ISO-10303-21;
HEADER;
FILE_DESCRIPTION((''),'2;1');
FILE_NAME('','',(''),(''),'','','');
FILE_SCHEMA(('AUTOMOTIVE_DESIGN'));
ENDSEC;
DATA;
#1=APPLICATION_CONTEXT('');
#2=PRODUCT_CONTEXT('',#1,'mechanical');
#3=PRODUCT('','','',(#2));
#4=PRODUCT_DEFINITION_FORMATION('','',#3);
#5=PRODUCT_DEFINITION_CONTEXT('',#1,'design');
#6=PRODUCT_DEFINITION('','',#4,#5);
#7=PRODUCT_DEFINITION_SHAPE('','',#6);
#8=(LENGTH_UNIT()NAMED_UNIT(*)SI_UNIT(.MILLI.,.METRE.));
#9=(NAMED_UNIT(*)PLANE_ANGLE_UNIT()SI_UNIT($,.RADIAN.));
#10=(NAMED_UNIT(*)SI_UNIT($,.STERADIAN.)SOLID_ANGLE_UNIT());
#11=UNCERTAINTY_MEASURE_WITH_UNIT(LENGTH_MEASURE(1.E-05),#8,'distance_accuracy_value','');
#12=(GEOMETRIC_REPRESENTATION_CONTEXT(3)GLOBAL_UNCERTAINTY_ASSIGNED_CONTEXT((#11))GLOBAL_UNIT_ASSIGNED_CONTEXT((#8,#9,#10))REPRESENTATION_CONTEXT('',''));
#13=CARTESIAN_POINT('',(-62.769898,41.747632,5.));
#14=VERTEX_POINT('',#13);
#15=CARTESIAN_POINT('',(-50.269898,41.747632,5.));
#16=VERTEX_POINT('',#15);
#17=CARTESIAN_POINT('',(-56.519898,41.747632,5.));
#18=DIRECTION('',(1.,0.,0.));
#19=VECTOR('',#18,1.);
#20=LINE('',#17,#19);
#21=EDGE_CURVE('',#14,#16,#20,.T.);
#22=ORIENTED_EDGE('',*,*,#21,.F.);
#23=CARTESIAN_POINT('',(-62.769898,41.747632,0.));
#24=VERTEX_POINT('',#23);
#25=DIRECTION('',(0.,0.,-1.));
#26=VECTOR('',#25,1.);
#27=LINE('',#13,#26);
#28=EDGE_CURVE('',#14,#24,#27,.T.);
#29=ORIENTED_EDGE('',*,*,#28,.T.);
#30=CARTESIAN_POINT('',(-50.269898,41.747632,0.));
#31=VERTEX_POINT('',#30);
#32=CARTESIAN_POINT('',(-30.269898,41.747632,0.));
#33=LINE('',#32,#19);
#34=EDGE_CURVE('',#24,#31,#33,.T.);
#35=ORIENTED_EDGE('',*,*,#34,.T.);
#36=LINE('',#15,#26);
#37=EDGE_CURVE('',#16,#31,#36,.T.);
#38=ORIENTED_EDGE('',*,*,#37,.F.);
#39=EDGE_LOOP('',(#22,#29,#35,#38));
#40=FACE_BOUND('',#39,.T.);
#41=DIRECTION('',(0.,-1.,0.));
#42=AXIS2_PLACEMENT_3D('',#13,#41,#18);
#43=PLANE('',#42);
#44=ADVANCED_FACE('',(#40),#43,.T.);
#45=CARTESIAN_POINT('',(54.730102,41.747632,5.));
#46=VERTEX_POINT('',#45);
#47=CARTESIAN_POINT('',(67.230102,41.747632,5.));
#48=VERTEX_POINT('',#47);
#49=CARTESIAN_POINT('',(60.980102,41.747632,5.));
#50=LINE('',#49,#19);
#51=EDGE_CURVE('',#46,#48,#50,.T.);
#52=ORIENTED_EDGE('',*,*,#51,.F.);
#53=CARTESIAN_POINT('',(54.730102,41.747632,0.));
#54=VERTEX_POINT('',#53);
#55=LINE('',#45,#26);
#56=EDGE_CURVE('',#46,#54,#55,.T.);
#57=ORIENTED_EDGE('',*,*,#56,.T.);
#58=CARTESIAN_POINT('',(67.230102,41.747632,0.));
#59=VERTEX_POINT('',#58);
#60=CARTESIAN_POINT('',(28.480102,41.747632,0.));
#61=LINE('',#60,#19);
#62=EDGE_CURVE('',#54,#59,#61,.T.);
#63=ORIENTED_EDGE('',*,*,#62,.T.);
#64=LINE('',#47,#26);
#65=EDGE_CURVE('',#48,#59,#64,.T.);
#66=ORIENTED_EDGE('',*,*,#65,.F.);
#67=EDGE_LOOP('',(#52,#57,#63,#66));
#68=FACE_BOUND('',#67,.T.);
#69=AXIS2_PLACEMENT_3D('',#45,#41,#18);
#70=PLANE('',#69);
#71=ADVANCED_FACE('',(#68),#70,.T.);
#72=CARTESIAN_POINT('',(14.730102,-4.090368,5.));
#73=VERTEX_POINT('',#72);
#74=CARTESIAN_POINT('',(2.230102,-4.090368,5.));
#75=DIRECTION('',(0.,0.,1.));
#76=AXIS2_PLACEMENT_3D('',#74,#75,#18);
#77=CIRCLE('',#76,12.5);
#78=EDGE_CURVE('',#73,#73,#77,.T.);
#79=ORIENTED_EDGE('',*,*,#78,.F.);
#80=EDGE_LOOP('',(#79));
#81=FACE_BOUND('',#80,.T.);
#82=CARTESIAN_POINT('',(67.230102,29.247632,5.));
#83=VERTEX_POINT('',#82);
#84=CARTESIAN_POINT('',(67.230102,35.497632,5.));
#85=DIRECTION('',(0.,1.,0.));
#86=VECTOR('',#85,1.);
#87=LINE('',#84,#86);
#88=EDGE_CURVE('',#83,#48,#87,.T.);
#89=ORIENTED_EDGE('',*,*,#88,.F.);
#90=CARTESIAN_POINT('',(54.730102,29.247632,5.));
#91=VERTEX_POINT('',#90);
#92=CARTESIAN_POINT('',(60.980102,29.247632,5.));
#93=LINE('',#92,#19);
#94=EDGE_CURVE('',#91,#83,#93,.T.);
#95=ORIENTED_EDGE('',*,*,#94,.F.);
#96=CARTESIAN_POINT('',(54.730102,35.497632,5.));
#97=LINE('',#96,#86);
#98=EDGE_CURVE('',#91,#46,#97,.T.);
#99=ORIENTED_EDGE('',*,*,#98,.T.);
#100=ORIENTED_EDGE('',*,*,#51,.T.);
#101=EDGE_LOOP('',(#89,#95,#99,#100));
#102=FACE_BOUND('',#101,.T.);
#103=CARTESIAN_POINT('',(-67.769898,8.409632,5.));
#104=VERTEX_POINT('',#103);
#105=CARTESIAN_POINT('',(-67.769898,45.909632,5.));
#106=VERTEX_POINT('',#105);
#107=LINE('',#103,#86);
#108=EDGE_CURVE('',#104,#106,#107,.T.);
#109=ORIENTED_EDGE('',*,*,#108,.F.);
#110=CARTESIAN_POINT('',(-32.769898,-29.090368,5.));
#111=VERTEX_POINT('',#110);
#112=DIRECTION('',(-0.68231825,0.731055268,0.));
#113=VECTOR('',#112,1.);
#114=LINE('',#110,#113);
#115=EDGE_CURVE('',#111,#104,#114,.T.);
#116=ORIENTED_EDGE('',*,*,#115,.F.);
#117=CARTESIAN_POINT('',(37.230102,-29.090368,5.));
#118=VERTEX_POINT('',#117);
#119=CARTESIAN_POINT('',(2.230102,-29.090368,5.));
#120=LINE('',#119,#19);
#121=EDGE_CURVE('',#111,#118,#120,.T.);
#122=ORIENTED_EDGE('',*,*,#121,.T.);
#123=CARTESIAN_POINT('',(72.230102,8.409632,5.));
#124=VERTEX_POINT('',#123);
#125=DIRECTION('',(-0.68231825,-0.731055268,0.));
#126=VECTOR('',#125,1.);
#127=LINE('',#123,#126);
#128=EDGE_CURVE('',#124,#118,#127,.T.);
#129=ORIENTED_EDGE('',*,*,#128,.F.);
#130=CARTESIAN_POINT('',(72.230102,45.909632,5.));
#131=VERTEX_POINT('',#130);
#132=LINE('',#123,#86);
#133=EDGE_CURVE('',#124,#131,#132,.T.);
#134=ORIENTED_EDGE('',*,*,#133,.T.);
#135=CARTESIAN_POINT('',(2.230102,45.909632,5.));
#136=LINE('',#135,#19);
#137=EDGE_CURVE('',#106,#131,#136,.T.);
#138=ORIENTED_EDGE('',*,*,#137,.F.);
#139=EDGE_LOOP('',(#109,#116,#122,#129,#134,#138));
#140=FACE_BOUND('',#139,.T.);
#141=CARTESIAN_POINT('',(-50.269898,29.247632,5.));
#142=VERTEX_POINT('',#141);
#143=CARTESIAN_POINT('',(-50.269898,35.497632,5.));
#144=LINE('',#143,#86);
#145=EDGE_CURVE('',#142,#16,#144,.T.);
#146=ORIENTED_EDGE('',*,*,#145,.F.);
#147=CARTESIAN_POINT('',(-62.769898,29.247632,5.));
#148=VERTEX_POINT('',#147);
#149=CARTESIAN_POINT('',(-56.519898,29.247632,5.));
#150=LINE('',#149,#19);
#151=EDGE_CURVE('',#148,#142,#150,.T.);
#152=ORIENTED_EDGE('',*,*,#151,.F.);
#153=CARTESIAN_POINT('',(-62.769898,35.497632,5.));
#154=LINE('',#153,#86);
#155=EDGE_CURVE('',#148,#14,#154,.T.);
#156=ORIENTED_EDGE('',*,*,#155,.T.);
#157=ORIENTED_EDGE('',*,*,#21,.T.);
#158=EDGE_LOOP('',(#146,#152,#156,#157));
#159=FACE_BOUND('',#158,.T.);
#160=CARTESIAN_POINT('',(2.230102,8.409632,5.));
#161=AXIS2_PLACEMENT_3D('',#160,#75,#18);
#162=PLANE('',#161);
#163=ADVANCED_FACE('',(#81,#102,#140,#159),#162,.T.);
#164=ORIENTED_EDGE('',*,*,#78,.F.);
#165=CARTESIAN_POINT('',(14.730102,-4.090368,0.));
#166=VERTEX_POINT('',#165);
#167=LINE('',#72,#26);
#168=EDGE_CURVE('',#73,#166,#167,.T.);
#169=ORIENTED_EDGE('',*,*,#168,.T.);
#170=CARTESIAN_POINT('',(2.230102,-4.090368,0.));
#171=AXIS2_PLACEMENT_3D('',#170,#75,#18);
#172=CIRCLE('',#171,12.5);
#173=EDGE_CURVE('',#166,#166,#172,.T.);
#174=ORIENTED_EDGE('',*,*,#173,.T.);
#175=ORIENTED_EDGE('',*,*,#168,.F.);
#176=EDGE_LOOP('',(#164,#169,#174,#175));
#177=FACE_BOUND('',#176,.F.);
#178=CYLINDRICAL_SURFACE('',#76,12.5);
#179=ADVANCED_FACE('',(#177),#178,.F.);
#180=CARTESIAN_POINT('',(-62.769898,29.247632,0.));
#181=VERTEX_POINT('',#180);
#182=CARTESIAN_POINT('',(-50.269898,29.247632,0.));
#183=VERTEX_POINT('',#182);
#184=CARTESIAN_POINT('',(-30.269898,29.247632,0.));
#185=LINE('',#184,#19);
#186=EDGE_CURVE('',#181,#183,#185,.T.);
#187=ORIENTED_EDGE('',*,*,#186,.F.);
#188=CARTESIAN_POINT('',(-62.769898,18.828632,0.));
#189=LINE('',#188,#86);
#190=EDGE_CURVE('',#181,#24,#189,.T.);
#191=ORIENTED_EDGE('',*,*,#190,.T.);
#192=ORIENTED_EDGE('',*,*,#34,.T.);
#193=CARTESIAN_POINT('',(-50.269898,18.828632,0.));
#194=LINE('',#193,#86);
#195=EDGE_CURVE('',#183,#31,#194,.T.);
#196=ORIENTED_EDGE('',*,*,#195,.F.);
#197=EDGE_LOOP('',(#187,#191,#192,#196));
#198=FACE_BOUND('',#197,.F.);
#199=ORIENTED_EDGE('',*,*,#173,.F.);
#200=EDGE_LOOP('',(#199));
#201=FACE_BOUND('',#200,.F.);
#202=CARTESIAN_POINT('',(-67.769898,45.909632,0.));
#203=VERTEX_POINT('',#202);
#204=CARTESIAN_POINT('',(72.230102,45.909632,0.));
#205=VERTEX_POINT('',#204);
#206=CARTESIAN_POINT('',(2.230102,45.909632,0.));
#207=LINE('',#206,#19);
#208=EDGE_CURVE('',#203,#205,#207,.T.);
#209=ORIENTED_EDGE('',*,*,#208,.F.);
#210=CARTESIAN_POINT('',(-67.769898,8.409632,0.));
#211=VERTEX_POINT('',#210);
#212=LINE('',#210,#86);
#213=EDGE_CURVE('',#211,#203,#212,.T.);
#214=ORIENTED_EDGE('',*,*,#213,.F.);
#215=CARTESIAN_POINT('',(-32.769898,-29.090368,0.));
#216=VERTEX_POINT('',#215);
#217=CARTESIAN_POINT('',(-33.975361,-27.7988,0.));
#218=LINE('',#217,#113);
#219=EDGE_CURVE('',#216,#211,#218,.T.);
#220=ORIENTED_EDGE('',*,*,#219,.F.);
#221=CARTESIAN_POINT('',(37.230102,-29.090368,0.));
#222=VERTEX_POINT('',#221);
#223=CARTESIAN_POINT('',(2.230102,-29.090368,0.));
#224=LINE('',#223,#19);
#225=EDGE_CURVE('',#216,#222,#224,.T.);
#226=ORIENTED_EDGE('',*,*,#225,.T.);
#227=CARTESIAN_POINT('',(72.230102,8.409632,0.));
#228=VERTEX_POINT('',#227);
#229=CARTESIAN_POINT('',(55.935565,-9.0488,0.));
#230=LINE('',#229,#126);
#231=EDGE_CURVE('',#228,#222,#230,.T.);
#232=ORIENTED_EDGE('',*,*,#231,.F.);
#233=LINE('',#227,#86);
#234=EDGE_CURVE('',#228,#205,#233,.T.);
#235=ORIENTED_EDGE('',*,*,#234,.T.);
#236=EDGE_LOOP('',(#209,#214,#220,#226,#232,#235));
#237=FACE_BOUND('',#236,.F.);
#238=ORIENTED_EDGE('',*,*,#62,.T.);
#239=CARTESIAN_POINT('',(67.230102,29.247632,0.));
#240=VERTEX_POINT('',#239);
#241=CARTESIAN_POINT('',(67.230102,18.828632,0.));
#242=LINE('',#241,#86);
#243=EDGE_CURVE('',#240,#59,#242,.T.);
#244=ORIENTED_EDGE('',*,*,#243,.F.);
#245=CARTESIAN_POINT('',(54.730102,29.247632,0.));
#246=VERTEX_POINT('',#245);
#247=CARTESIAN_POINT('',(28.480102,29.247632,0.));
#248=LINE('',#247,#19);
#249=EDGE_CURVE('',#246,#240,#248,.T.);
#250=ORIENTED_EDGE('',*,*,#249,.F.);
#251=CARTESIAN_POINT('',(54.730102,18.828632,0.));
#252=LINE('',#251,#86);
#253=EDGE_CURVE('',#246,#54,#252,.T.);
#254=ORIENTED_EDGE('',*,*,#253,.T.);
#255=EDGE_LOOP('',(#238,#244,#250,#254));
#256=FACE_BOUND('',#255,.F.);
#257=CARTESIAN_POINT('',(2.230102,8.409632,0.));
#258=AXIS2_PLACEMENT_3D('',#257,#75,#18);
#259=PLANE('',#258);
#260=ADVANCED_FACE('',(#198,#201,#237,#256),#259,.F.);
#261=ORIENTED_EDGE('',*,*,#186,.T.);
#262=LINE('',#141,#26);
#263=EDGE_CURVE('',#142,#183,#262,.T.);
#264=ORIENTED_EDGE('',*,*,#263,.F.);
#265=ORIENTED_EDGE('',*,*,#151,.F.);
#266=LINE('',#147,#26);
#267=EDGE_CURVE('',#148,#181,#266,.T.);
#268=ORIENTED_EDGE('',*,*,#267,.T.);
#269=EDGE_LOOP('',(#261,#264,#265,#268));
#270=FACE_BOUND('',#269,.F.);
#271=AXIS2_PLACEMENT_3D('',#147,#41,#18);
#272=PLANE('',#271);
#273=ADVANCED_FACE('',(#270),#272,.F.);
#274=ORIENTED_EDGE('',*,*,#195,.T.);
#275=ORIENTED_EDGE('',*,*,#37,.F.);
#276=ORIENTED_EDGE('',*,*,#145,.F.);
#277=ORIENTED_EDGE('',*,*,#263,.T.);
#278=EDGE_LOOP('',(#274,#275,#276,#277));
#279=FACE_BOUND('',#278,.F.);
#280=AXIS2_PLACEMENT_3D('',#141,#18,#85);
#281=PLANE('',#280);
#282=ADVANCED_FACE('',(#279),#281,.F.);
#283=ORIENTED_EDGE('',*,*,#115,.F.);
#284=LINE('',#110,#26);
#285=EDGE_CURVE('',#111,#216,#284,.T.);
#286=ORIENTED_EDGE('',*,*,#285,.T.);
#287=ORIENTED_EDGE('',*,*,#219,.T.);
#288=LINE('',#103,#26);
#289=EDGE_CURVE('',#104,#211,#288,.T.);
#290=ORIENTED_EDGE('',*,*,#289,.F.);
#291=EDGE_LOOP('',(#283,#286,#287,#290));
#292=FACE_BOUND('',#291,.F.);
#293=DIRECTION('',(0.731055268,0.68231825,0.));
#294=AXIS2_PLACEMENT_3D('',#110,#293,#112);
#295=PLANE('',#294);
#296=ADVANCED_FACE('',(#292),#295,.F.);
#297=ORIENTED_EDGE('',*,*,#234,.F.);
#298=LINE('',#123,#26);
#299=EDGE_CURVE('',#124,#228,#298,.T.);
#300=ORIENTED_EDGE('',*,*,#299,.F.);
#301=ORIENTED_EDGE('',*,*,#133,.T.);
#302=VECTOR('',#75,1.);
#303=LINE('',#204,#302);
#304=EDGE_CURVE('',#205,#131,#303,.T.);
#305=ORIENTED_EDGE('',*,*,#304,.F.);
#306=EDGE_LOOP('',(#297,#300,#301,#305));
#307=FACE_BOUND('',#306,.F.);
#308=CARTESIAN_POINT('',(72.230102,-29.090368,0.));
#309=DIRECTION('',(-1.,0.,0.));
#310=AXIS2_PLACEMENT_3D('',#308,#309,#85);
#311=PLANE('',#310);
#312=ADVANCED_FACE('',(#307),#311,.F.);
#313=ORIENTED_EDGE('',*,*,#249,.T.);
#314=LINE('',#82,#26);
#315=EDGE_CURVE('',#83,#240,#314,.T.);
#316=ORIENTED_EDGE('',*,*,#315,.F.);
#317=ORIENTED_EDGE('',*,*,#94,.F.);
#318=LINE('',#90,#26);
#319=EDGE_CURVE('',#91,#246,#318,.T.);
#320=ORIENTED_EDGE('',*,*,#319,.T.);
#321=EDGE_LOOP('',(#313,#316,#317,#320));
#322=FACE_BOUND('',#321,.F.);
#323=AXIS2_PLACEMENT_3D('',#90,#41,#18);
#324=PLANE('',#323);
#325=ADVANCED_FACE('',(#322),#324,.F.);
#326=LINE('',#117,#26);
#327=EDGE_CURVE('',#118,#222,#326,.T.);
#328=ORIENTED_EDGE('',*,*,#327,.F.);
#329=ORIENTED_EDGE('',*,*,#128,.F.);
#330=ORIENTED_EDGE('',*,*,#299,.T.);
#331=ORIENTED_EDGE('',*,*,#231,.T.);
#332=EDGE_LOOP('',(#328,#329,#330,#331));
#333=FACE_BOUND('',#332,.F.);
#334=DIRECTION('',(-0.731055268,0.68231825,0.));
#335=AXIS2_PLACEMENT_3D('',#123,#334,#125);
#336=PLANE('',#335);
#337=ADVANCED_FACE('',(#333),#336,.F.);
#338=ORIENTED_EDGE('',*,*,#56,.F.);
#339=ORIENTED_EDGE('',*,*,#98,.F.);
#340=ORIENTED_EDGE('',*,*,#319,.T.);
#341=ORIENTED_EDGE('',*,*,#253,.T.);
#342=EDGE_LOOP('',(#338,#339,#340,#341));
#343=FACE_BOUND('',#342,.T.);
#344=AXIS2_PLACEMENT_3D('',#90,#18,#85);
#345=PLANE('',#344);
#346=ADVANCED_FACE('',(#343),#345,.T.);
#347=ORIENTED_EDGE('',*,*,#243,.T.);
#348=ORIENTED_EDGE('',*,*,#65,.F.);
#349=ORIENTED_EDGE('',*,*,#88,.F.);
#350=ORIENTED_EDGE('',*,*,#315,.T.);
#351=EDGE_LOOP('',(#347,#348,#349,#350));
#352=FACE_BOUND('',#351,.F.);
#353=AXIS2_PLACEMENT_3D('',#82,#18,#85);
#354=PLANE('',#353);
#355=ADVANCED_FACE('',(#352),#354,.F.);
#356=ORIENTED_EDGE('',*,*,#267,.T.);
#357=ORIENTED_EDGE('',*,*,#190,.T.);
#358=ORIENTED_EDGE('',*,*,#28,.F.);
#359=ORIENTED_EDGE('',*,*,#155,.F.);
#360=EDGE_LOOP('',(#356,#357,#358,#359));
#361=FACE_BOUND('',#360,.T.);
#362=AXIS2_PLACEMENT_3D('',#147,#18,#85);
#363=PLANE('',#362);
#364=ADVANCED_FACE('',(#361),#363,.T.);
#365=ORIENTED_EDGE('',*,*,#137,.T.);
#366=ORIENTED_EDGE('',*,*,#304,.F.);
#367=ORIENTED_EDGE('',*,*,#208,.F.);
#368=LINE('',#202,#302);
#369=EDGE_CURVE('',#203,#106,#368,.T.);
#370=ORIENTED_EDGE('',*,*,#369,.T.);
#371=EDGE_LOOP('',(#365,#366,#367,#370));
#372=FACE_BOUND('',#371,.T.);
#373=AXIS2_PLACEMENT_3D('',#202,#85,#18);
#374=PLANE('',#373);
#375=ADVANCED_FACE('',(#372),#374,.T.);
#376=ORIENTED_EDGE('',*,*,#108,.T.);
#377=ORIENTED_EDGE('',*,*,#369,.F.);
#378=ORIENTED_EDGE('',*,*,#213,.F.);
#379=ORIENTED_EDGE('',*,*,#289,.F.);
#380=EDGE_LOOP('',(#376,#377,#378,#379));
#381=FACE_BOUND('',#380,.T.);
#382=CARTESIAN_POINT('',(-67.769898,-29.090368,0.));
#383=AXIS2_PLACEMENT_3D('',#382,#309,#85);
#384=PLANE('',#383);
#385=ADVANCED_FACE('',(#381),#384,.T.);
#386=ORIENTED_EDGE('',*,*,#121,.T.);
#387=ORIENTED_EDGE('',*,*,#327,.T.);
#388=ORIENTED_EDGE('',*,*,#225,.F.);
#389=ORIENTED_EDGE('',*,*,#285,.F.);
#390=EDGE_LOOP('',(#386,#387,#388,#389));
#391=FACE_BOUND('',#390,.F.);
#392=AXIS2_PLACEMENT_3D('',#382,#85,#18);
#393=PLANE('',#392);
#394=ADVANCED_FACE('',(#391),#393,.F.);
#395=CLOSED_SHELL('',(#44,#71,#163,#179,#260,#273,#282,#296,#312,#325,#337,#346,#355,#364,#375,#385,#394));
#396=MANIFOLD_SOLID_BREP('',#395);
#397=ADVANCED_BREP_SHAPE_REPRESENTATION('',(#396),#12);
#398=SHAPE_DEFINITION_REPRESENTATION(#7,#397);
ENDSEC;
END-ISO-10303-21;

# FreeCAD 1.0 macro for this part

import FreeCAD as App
import Part
import Sketcher
from FreeCAD import Vector

doc = App.newDocument("Part")
body = doc.addObject("PartDesign::Body", "Body")

# Sketch on XY plane
sketch1 = body.newObject("Sketcher::SketchObject", "Sketch")
sketch1.AttachmentSupport = (doc.getObject("XY_Plane"), [""])
sketch1.MapMode = "FlatFace"
sketch1.addGeometry(Part.LineSegment(Vector(-67.769898, 45.909632, 0), Vector(-67.769898, -29.090368, 0)), False)
sketch1.addGeometry(Part.LineSegment(Vector(-67.769898, -29.090368, 0), Vector(72.230102, -29.090368, 0)), False)
sketch1.addGeometry(Part.LineSegment(Vector(72.230102, -29.090368, 0), Vector(72.230102, 45.909632, 0)), False)
sketch1.addGeometry(Part.LineSegment(Vector(72.230102, 45.909632, 0), Vector(-67.769898, 45.909632, 0)), False)
sketch1.addConstraint(Sketcher.Constraint("Coincident", 0, 2, 1, 1))
sketch1.addConstraint(Sketcher.Constraint("Coincident", 1, 2, 2, 1))
sketch1.addConstraint(Sketcher.Constraint("Coincident", 2, 2, 3, 1))
sketch1.addConstraint(Sketcher.Constraint("Coincident", 3, 2, 0, 1))
sketch1.addConstraint(Sketcher.Constraint("Vertical", 0))
sketch1.addConstraint(Sketcher.Constraint("Horizontal", 1))
sketch1.addConstraint(Sketcher.Constraint("Vertical", 2))
sketch1.addConstraint(Sketcher.Constraint("Horizontal", 3))
sketch1.addConstraint(Sketcher.Constraint("DistanceX", 1, 1, 1, 2, 140.0))
sketch1.addConstraint(Sketcher.Constraint("DistanceY", 0, 2, 0, 1, 75.0))
sketch1.addConstraint(Sketcher.Constraint("DistanceY", 0, 2, -1, 1, 29.090368))
sketch1.addConstraint(Sketcher.Constraint("DistanceX", 0, 2, -1, 1, 67.769898))
pad1 = body.newObject("PartDesign::Pad", "Pad")
pad1.Profile = sketch1
pad1.Length = 5

# Sketch on XY plane
sketch2 = body.newObject("Sketcher::SketchObject", "Sketch001")
sketch2.AttachmentSupport = (doc.getObject("XY_Plane"), [""])
sketch2.MapMode = "FlatFace"
sketch2.AttachmentOffset = App.Placement(Vector(0, 0, 5), App.Rotation())
sketch2.addGeometry(Part.LineSegment(Vector(-62.769898, 41.747632, 0), Vector(-62.769898, 29.247632, 0)), False)
sketch2.addGeometry(Part.LineSegment(Vector(-62.769898, 29.247632, 0), Vector(-50.269898, 29.247632, 0)), False)
sketch2.addGeometry(Part.LineSegment(Vector(-50.269898, 29.247632, 0), Vector(-50.269898, 41.747632, 0)), False)
sketch2.addGeometry(Part.LineSegment(Vector(-50.269898, 41.747632, 0), Vector(-62.769898, 41.747632, 0)), False)
sketch2.addGeometry(Part.LineSegment(Vector(54.730102, 41.747632, 0), Vector(54.730102, 29.247632, 0)), False)
sketch2.addGeometry(Part.LineSegment(Vector(54.730102, 29.247632, 0), Vector(67.230102, 29.247632, 0)), False)
sketch2.addGeometry(Part.LineSegment(Vector(67.230102, 29.247632, 0), Vector(67.230102, 41.747632, 0)), False)
sketch2.addGeometry(Part.LineSegment(Vector(67.230102, 41.747632, 0), Vector(54.730102, 41.747632, 0)), False)
sketch2.addConstraint(Sketcher.Constraint("Coincident", 0, 2, 1, 1))
sketch2.addConstraint(Sketcher.Constraint("Coincident", 1, 2, 2, 1))
sketch2.addConstraint(Sketcher.Constraint("Coincident", 2, 2, 3, 1))
sketch2.addConstraint(Sketcher.Constraint("Coincident", 3, 2, 0, 1))
sketch2.addConstraint(Sketcher.Constraint("Coincident", 4, 2, 5, 1))
sketch2.addConstraint(Sketcher.Constraint("Coincident", 5, 2, 6, 1))
sketch2.addConstraint(Sketcher.Constraint("Coincident", 6, 2, 7, 1))
sketch2.addConstraint(Sketcher.Constraint("Coincident", 7, 2, 4, 1))
sketch2.addConstraint(Sketcher.Constraint("Vertical", 0))
sketch2.addConstraint(Sketcher.Constraint("Horizontal", 1))
sketch2.addConstraint(Sketcher.Constraint("Vertical", 2))
sketch2.addConstraint(Sketcher.Constraint("Horizontal", 3))
sketch2.addConstraint(Sketcher.Constraint("Vertical", 4))
sketch2.addConstraint(Sketcher.Constraint("Horizontal", 5))
sketch2.addConstraint(Sketcher.Constraint("Vertical", 6))
sketch2.addConstraint(Sketcher.Constraint("Horizontal", 7))
sketch2.addConstraint(Sketcher.Constraint("Horizontal", 1, 2, 4, 2))
sketch2.addConstraint(Sketcher.Constraint("Horizontal", 3, 2, 6, 2))
sketch2.addConstraint(Sketcher.Constraint("Equal", 3, 5))
sketch2.addConstraint(Sketcher.Constraint("Equal", 7, 0))
sketch2.addConstraint(Sketcher.Constraint("DistanceX", 1, 1, 1, 2, 12.5))
sketch2.addConstraint(Sketcher.Constraint("DistanceX", 1, 2, 4, 2, 105.0))
sketch2.addConstraint(Sketcher.Constraint("DistanceY", -1, 1, 0, 2, 29.247632))
sketch2.addConstraint(Sketcher.Constraint("DistanceX", 0, 2, -1, 1, 62.769898))
pocket1 = body.newObject("PartDesign::Pocket", "Pocket")
pocket1.Profile = sketch2
pocket1.Length = 25

# Sketch on XY plane
sketch3 = body.newObject("Sketcher::SketchObject", "Sketch002")
sketch3.AttachmentSupport = (doc.getObject("XY_Plane"), [""])
sketch3.MapMode = "FlatFace"
sketch3.AttachmentOffset = App.Placement(Vector(0, 0, 5), App.Rotation())
sketch3.addGeometry(Part.Circle(Vector(2.230102, -4.090368, 0), Vector(0, 0, 1), 12.5), False)
sketch3.addConstraint(Sketcher.Constraint("Diameter", 0, 25.0))
sketch3.addConstraint(Sketcher.Constraint("DistanceX", -1, 1, 0, 3, 2.230102))
sketch3.addConstraint(Sketcher.Constraint("DistanceY", 0, 3, -1, 1, 4.090368))
pocket2 = body.newObject("PartDesign::Pocket", "Pocket001")
pocket2.Profile = sketch3
pocket2.Length = 25

# Sketch on XY plane
sketch4 = body.newObject("Sketcher::SketchObject", "Sketch003")
sketch4.AttachmentSupport = (doc.getObject("XY_Plane"), [""])
sketch4.MapMode = "FlatFace"
sketch4.AttachmentOffset = App.Placement(Vector(0, 0, 5), App.Rotation())
sketch4.addGeometry(Part.LineSegment(Vector(-32.769898, -29.090368, 0), Vector(-67.769898, 8.409632, 0)), False)
sketch4.addGeometry(Part.LineSegment(Vector(-67.769898, 8.409632, 0), Vector(-67.769898, -29.090368, 0)), False)
sketch4.addGeometry(Part.LineSegment(Vector(-67.769898, -29.090368, 0), Vector(-32.769898, -29.090368, 0)), False)
sketch4.addGeometry(Part.LineSegment(Vector(72.230102, -29.090368, 0), Vector(72.230102, 8.409632, 0)), False)
sketch4.addGeometry(Part.LineSegment(Vector(72.230102, 8.409632, 0), Vector(37.230102, -29.090368, 0)), False)
sketch4.addGeometry(Part.LineSegment(Vector(37.230102, -29.090368, 0), Vector(72.230102, -29.090368, 0)), False)
sketch4.addConstraint(Sketcher.Constraint("Coincident", 0, 2, 1, 1))
sketch4.addConstraint(Sketcher.Constraint("Coincident", 1, 2, 2, 1))
sketch4.addConstraint(Sketcher.Constraint("Coincident", 2, 2, 0, 1))
sketch4.addConstraint(Sketcher.Constraint("Coincident", 3, 2, 4, 1))
sketch4.addConstraint(Sketcher.Constraint("Coincident", 4, 2, 5, 1))
sketch4.addConstraint(Sketcher.Constraint("Coincident", 5, 2, 3, 1))
sketch4.addConstraint(Sketcher.Constraint("Vertical", 1))
sketch4.addConstraint(Sketcher.Constraint("Horizontal", 2))
sketch4.addConstraint(Sketcher.Constraint("Vertical", 3))
sketch4.addConstraint(Sketcher.Constraint("Horizontal", 5))
sketch4.addConstraint(Sketcher.Constraint("Horizontal", 0, 2, 3, 2))
sketch4.addConstraint(Sketcher.Constraint("Horizontal", 2, 2, 4, 2))
sketch4.addConstraint(Sketcher.Constraint("Equal", 2, 5))
sketch4.addConstraint(Sketcher.Constraint("DistanceX", 2, 1, 2, 2, 35.0))
sketch4.addConstraint(Sketcher.Constraint("DistanceY", 1, 2, 1, 1, 37.5))
sketch4.addConstraint(Sketcher.Constraint("DistanceX", 2, 2, 3, 2, 105.0))
sketch4.addConstraint(Sketcher.Constraint("DistanceY", 1, 2, -1, 1, 29.090368))
sketch4.addConstraint(Sketcher.Constraint("DistanceX", 0, 2, -1, 1, 67.769898))
pocket3 = body.newObject("PartDesign::Pocket", "Pocket002")
pocket3.Profile = sketch4
pocket3.Length = 25

doc.recompute()
